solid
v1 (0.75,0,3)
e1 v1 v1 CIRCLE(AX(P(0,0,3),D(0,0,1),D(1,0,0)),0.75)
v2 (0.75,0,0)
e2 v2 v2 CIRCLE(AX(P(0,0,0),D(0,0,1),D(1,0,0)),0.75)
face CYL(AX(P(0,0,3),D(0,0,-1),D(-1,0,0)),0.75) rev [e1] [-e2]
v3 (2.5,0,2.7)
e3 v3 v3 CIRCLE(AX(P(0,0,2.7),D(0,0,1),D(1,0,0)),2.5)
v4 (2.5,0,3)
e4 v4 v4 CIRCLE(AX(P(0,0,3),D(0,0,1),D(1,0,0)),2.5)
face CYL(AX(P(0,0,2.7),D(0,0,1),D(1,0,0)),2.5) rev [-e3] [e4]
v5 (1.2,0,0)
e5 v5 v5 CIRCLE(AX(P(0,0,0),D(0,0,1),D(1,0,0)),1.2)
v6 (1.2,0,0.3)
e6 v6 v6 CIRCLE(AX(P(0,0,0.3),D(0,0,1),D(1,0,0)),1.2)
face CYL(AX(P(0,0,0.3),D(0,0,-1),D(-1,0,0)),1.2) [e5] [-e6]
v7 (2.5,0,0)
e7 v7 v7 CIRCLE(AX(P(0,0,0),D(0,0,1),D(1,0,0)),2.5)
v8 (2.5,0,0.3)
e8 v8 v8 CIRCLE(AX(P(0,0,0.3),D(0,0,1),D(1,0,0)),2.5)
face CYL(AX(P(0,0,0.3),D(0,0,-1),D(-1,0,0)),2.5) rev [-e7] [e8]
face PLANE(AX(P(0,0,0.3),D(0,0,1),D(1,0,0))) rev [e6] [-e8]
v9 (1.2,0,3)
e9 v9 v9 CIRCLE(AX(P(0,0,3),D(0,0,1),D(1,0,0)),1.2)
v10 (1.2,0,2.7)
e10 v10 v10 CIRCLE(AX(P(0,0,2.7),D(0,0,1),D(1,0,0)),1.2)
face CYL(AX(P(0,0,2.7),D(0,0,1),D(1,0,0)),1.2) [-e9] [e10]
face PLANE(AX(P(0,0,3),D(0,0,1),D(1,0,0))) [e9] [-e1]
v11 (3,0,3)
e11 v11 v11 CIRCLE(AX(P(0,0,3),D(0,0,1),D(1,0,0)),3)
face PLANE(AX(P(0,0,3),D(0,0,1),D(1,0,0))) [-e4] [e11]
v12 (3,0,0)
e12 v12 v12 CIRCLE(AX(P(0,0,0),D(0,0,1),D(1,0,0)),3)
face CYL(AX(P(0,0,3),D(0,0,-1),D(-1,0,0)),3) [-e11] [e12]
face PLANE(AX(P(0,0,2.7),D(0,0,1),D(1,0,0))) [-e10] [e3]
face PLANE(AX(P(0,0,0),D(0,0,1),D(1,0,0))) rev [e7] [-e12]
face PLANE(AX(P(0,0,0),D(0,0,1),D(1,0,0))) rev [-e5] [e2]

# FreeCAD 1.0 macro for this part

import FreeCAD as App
import Part
import Sketcher
Q = App.Units.Quantity

doc = App.newDocument("Part")
body = doc.addObject("PartDesign::Body", "Body")

# Sketch on XY plane
sketch1 = doc.addObject("Sketcher::SketchObject", "Sketch")
body.addObject(sketch1)
sketch1.AttachmentSupport = (doc.XY_Plane, [""])
sketch1.MapMode = "FlatFace"
sketch1.addGeometry([
    Part.Circle(App.Vector(0, 0, 0), App.Vector(0, 0, 1), 3),
    Part.Circle(App.Vector(0, 0, 0), App.Vector(0, 0, 1), 0.75),
], False)
sketch1.addConstraint([
    Sketcher.Constraint("Coincident", 0, 3, -1, 1),
    Sketcher.Constraint("Coincident", 1, 3, -1, 1),
    Sketcher.Constraint("Diameter", 0, Q("6 mm")),
    Sketcher.Constraint("Diameter", 1, Q("1.5 mm")),
])
pad1 = doc.addObject("PartDesign::Pad", "Pad")
body.addObject(pad1)
pad1.Profile = sketch1
pad1.Length = 3

# Sketch on XY plane
sketch2 = doc.addObject("Sketcher::SketchObject", "Sketch001")
body.addObject(sketch2)
sketch2.AttachmentSupport = (doc.XY_Plane, [""])
sketch2.MapMode = "FlatFace"
sketch2.AttachmentOffset = App.Placement(App.Vector(0, 0, 3), App.Rotation())
sketch2.addGeometry([
    Part.Circle(App.Vector(0, 0, 0), App.Vector(0, 0, 1), 2.5),
    Part.Circle(App.Vector(0, 0, 0), App.Vector(0, 0, 1), 1.2),
], False)
sketch2.addConstraint([
    Sketcher.Constraint("Coincident", 0, 3, -1, 1),
    Sketcher.Constraint("Coincident", 1, 3, -1, 1),
    Sketcher.Constraint("Diameter", 0, Q("5 mm")),
    Sketcher.Constraint("Diameter", 1, Q("2.4 mm")),
])
pocket1 = doc.addObject("PartDesign::Pocket", "Pocket")
body.addObject(pocket1)
pocket1.Profile = sketch2
pocket1.Length = 0.3

# Sketch on XY plane
sketch3 = doc.addObject("Sketcher::SketchObject", "Sketch002")
body.addObject(sketch3)
sketch3.AttachmentSupport = (doc.XY_Plane, [""])
sketch3.MapMode = "FlatFace"
sketch3.addGeometry([
    Part.Circle(App.Vector(0, 0, 0), App.Vector(0, 0, 1), 2.5),
    Part.Circle(App.Vector(0, 0, 0), App.Vector(0, 0, 1), 1.2),
], False)
sketch3.addConstraint([
    Sketcher.Constraint("Coincident", 0, 3, -1, 1),
    Sketcher.Constraint("Coincident", 1, 3, -1, 1),
    Sketcher.Constraint("Diameter", 0, Q("5 mm")),
    Sketcher.Constraint("Diameter", 1, Q("2.4 mm")),
])
pocket2 = doc.addObject("PartDesign::Pocket", "Pocket001")
body.addObject(pocket2)
pocket2.Profile = sketch3
pocket2.Length = 0.3
pocket2.Reversed = True

doc.recompute()
